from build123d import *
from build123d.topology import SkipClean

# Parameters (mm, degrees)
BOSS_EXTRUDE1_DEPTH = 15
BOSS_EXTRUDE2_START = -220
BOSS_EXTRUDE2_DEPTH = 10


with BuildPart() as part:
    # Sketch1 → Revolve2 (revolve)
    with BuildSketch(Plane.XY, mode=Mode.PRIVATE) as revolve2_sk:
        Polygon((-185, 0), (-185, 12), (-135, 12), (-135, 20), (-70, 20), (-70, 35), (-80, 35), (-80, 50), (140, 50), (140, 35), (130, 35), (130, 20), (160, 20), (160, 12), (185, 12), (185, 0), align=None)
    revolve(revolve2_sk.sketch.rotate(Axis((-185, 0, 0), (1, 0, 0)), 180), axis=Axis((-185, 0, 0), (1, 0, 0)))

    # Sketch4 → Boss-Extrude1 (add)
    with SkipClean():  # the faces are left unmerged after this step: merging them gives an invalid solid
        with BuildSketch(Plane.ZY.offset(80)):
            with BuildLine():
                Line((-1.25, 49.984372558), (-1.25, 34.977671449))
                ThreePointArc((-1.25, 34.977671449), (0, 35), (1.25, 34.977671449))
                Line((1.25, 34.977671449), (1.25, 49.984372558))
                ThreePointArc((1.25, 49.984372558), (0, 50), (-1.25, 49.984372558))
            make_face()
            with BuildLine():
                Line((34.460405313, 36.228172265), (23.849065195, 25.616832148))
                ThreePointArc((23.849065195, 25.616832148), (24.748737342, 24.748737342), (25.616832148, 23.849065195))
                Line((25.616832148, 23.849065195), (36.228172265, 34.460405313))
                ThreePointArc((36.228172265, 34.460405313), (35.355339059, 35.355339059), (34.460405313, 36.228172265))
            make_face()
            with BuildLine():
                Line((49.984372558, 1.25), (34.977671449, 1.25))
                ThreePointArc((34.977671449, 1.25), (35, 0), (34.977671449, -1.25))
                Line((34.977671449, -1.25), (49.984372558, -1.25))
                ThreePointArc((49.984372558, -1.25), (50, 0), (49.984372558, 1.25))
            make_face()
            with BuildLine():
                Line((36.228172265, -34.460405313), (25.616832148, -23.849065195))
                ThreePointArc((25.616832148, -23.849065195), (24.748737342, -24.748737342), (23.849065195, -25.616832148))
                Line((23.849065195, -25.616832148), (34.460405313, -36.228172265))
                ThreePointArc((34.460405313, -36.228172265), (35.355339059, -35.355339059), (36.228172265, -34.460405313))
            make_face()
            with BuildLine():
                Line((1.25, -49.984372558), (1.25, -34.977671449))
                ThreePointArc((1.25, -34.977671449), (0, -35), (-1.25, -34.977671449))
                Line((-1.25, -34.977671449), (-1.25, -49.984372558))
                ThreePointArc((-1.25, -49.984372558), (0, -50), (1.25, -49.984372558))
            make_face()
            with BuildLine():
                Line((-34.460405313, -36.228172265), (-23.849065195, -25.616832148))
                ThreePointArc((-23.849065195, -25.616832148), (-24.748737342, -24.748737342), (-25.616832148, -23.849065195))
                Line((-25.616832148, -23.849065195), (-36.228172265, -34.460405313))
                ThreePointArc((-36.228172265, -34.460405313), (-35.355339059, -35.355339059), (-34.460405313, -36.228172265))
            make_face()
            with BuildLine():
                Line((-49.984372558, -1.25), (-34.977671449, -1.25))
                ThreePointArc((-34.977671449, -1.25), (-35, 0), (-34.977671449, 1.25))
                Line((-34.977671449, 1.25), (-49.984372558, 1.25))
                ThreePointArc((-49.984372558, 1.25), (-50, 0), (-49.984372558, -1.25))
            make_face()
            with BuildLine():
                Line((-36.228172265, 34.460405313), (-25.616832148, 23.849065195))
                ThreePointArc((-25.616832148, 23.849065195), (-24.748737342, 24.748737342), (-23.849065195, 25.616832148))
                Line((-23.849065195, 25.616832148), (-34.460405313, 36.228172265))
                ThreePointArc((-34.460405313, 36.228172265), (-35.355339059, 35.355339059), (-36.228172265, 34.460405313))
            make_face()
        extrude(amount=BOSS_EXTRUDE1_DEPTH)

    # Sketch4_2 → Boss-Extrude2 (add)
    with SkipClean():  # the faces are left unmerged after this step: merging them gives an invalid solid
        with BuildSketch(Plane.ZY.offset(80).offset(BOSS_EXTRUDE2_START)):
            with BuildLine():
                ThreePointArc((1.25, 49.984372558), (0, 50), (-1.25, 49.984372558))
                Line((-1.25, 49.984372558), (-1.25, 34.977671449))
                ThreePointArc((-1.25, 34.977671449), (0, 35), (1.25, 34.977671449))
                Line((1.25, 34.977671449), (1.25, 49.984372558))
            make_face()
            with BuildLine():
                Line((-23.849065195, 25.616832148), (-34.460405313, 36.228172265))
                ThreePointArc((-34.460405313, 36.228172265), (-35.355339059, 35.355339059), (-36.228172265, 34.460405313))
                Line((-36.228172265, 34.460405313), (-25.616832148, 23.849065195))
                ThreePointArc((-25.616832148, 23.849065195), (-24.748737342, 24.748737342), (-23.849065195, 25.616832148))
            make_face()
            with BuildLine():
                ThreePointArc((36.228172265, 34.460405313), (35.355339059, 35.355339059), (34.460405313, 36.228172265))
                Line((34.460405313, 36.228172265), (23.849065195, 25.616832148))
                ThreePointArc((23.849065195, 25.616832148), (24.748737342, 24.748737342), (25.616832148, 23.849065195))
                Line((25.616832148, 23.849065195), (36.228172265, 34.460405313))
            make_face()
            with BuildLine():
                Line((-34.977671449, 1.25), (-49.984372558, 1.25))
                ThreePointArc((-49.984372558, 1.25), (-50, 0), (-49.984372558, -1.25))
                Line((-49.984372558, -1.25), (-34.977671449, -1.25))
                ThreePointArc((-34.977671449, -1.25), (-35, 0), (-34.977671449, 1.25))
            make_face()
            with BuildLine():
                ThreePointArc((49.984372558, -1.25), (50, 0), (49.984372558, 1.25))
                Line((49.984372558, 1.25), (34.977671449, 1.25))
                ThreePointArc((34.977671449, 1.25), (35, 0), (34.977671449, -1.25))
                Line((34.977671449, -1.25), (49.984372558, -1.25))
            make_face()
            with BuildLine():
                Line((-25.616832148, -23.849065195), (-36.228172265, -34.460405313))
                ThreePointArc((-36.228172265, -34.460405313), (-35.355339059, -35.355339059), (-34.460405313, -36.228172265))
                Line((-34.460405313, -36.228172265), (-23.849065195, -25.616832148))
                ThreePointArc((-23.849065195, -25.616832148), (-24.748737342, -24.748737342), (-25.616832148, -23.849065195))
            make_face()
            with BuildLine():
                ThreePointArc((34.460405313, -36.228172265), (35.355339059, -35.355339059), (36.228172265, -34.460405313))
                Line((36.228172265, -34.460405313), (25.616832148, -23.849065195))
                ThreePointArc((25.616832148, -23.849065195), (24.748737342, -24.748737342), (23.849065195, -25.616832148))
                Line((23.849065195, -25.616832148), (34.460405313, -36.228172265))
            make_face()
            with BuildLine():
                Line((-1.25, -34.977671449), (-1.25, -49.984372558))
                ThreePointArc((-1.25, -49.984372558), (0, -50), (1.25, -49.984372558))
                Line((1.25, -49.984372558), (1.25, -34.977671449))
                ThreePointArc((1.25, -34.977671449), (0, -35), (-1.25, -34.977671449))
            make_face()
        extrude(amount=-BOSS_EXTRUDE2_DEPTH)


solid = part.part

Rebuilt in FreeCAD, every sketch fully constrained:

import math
import FreeCAD as App
import Part
import Sketcher
Q = App.Units.Quantity


def add_polygon(sketch, points):
    """Adds a closed chain of lines whose ends are joined by coincident constraints."""
    first, n = sketch.GeometryCount, len(points)
    for a, b in zip(points, points[1:] + points[:1]):
        sketch.addGeometry(Part.LineSegment(App.Vector(*a, 0), App.Vector(*b, 0)), False)
    for i in range(n):
        sketch.addConstraint(Sketcher.Constraint("Coincident", first + i, 2, first + (i + 1) % n, 1))

doc = App.newDocument("Part")
body = doc.addObject("PartDesign::Body", "Body")

sketch1 = body.newObject("Sketcher::SketchObject", "Sketch")
sketch1.AttachmentSupport = (doc.getObject("XY_Plane"), [""])
sketch1.MapMode = "FlatFace"
add_polygon(sketch1, [(-185, 12), (-185, 0), (185, 0), (185, 12), (160, 12), (160, 20), (130, 20), (130, 35), (140, 35), (140, 50), (-80, 50), (-80, 35), (-70, 35), (-70, 20), (-135, 20), (-135, 12)])
sketch1.addConstraint([
    Sketcher.Constraint("Vertical", 0),
    Sketcher.Constraint("Horizontal", 1),
    Sketcher.Constraint("Vertical", 2),
    Sketcher.Constraint("Horizontal", 3),
    Sketcher.Constraint("Vertical", 4),
    Sketcher.Constraint("Horizontal", 5),
    Sketcher.Constraint("Vertical", 6),
    Sketcher.Constraint("Horizontal", 7),
    Sketcher.Constraint("Vertical", 8),
    Sketcher.Constraint("Horizontal", 9),
    Sketcher.Constraint("Vertical", 10),
    Sketcher.Constraint("Horizontal", 11),
    Sketcher.Constraint("Vertical", 12),
    Sketcher.Constraint("Horizontal", 13),
    Sketcher.Constraint("Vertical", 14),
    Sketcher.Constraint("Horizontal", 15),
    Sketcher.Constraint("Symmetric", 0, 2, 1, 2, -1, 1),
    Sketcher.Constraint("Horizontal", 7, 2, 10, 2),
    Sketcher.Constraint("Horizontal", 5, 2, 12, 2),
    Sketcher.Constraint("Horizontal", 3, 2, 14, 2),
    Sketcher.Constraint("Equal", 7, 11),
    Sketcher.Constraint("Equal", 6, 8),
    Sketcher.Constraint("DistanceX", 1, 1, 1, 2, Q("370 mm")),
    Sketcher.Constraint("DistanceX", 3, 2, 3, 1, Q("25 mm")),
    Sketcher.Constraint("DistanceX", 5, 2, 5, 1, Q("30 mm")),
    Sketcher.Constraint("DistanceX", 7, 1, 7, 2, Q("10 mm")),
    Sketcher.Constraint("DistanceX", 9, 2, 9, 1, Q("220 mm")),
    Sketcher.Constraint("DistanceX", 13, 2, 13, 1, Q("65 mm")),
    Sketcher.Constraint("DistanceY", 0, 2, 0, 1, Q("12 mm")),
    Sketcher.Constraint("DistanceY", 4, 1, 4, 2, Q("8 mm")),
    Sketcher.Constraint("DistanceY", 6, 1, 6, 2, Q("15 mm")),
])
revolution = body.newObject("PartDesign::Revolution", "Revolution")
revolution.Profile = sketch1
revolution.ReferenceAxis = (sketch1, ["H_Axis"])
revolution.Angle = 360

sketch2 = body.newObject("Sketcher::SketchObject", "Sketch001")
sketch2.AttachmentSupport = (doc.getObject("YZ_Plane"), [""])
sketch2.MapMode = "FlatFace"
sketch2.AttachmentOffset = App.Placement(App.Vector(0, 0, -80), App.Rotation())
sketch2.addGeometry([
    Part.LineSegment(App.Vector(49.984373, -1.25, 0), App.Vector(34.977671, -1.25, 0)),
    Part.ArcOfCircle(Part.Circle(App.Vector(0, 0, 0), App.Vector(0, 0, 1), 35), math.radians(-2.046713), math.radians(2.046713)),
    Part.LineSegment(App.Vector(34.977671, 1.25, 0), App.Vector(49.984373, 1.25, 0)),
    Part.ArcOfCircle(Part.Circle(App.Vector(-0.000001, 0, 0), App.Vector(0, 0, 1), 50.000001), math.radians(-1.432544), math.radians(1.432544)),
    Part.LineSegment(App.Vector(36.228172, 34.460405, 0), App.Vector(25.616832, 23.849065, 0)),
    Part.ArcOfCircle(Part.Circle(App.Vector(0.000001, 0.000001, 0), App.Vector(0, 0, 1), 34.999998), math.radians(42.953287), math.radians(47.046713)),
    Part.LineSegment(App.Vector(23.849065, 25.616832, 0), App.Vector(34.460405, 36.228172, 0)),
    Part.ArcOfCircle(Part.Circle(App.Vector(-0.000001, -0.000001, 0), App.Vector(0, 0, 1), 50.000001), math.radians(43.567456), math.radians(46.432544)),
    Part.LineSegment(App.Vector(1.25, 49.984373, 0), App.Vector(1.25, 34.977671, 0)),
    Part.ArcOfCircle(Part.Circle(App.Vector(0, 0, 0), App.Vector(0, 0, 1), 35), math.radians(87.953287), math.radians(92.046713)),
    Part.LineSegment(App.Vector(-1.25, 34.977671, 0), App.Vector(-1.25, 49.984373, 0)),
    Part.ArcOfCircle(Part.Circle(App.Vector(0, -0.000001, 0), App.Vector(0, 0, 1), 50.000001), math.radians(88.567456), math.radians(91.432544)),
    Part.LineSegment(App.Vector(-34.460405, 36.228172, 0), App.Vector(-23.849065, 25.616832, 0)),
    Part.ArcOfCircle(Part.Circle(App.Vector(-0.000001, 0.000001, 0), App.Vector(0, 0, 1), 34.999998), math.radians(132.953287), math.radians(137.046713)),
    Part.LineSegment(App.Vector(-25.616832, 23.849065, 0), App.Vector(-36.228172, 34.460405, 0)),
    Part.ArcOfCircle(Part.Circle(App.Vector(0.000001, -0.000001, 0), App.Vector(0, 0, 1), 50.000001), math.radians(133.567456), math.radians(136.432544)),
    Part.LineSegment(App.Vector(-49.984373, 1.25, 0), App.Vector(-34.977671, 1.25, 0)),
    Part.ArcOfCircle(Part.Circle(App.Vector(0, 0, 0), App.Vector(0, 0, 1), 35), math.radians(177.953287), math.radians(182.046713)),
    Part.LineSegment(App.Vector(-34.977671, -1.25, 0), App.Vector(-49.984373, -1.25, 0)),
    Part.ArcOfCircle(Part.Circle(App.Vector(0.000001, 0, 0), App.Vector(0, 0, 1), 50.000001), math.radians(178.567456), math.radians(181.432544)),
    Part.LineSegment(App.Vector(-36.228172, -34.460405, 0), App.Vector(-25.616832, -23.849065, 0)),
    Part.ArcOfCircle(Part.Circle(App.Vector(-0.000001, -0.000001, 0), App.Vector(0, 0, 1), 34.999998), math.radians(-137.046713), math.radians(-132.953287)),
    Part.LineSegment(App.Vector(-23.849065, -25.616832, 0), App.Vector(-34.460405, -36.228172, 0)),
    Part.ArcOfCircle(Part.Circle(App.Vector(0.000001, 0.000001, 0), App.Vector(0, 0, 1), 50.000001), math.radians(-136.432544), math.radians(-133.567456)),
    Part.LineSegment(App.Vector(-1.25, -49.984373, 0), App.Vector(-1.25, -34.977671, 0)),
    Part.ArcOfCircle(Part.Circle(App.Vector(0, 0, 0), App.Vector(0, 0, 1), 35), math.radians(-92.046713), math.radians(-87.953287)),
    Part.LineSegment(App.Vector(1.25, -34.977671, 0), App.Vector(1.25, -49.984373, 0)),
    Part.ArcOfCircle(Part.Circle(App.Vector(0, 0.000001, 0), App.Vector(0, 0, 1), 50.000001), math.radians(-91.432544), math.radians(-88.567456)),
    Part.LineSegment(App.Vector(34.460405, -36.228172, 0), App.Vector(23.849065, -25.616832, 0)),
    Part.ArcOfCircle(Part.Circle(App.Vector(0.000001, -0.000001, 0), App.Vector(0, 0, 1), 34.999998), math.radians(-47.046713), math.radians(-42.953287)),
    Part.LineSegment(App.Vector(25.616832, -23.849065, 0), App.Vector(36.228172, -34.460405, 0)),
    Part.ArcOfCircle(Part.Circle(App.Vector(-0.000001, 0.000001, 0), App.Vector(0, 0, 1), 50.000001), math.radians(-46.432544), math.radians(-43.567456)),
], False)
sketch2.addConstraint([
    Sketcher.Constraint("Coincident", 0, 2, 1, 1),
    Sketcher.Constraint("Coincident", 1, 2, 2, 1),
    Sketcher.Constraint("Coincident", 2, 2, 3, 2),
    Sketcher.Constraint("Coincident", 3, 1, 0, 1),
    Sketcher.Constraint("Coincident", 4, 2, 5, 1),
    Sketcher.Constraint("Coincident", 5, 2, 6, 1),
    Sketcher.Constraint("Coincident", 6, 2, 7, 2),
    Sketcher.Constraint("Coincident", 7, 1, 4, 1),
    Sketcher.Constraint("Coincident", 8, 2, 9, 1),
    Sketcher.Constraint("Coincident", 9, 2, 10, 1),
    Sketcher.Constraint("Coincident", 10, 2, 11, 2),
    Sketcher.Constraint("Coincident", 11, 1, 8, 1),
    Sketcher.Constraint("Coincident", 12, 2, 13, 1),
    Sketcher.Constraint("Coincident", 13, 2, 14, 1),
    Sketcher.Constraint("Coincident", 14, 2, 15, 2),
    Sketcher.Constraint("Coincident", 15, 1, 12, 1),
    Sketcher.Constraint("Coincident", 16, 2, 17, 1),
    Sketcher.Constraint("Coincident", 17, 2, 18, 1),
    Sketcher.Constraint("Coincident", 18, 2, 19, 2),
    Sketcher.Constraint("Coincident", 19, 1, 16, 1),
    Sketcher.Constraint("Coincident", 20, 2, 21, 1),
    Sketcher.Constraint("Coincident", 21, 2, 22, 1),
    Sketcher.Constraint("Coincident", 22, 2, 23, 2),
    Sketcher.Constraint("Coincident", 23, 1, 20, 1),
    Sketcher.Constraint("Coincident", 24, 2, 25, 1),
    Sketcher.Constraint("Coincident", 25, 2, 26, 1),
    Sketcher.Constraint("Coincident", 26, 2, 27, 2),
    Sketcher.Constraint("Coincident", 27, 1, 24, 1),
    Sketcher.Constraint("Coincident", 28, 2, 29, 1),
    Sketcher.Constraint("Coincident", 29, 2, 30, 1),
    Sketcher.Constraint("Coincident", 30, 2, 31, 2),
    Sketcher.Constraint("Coincident", 31, 1, 28, 1),
    Sketcher.Constraint("Horizontal", 0),
    Sketcher.Constraint("Horizontal", 2),
    Sketcher.Constraint("Vertical", 8),
    Sketcher.Constraint("Vertical", 10),
    Sketcher.Constraint("Horizontal", 16),
    Sketcher.Constraint("Horizontal", 18),
    Sketcher.Constraint("Vertical", 24),
    Sketcher.Constraint("Vertical", 26),
    Sketcher.Constraint("Coincident", 1, 3, -1, 1),
    Sketcher.Constraint("Coincident", 3, 3, -1, 1),
    Sketcher.Constraint("Coincident", 5, 3, -1, 1),
    Sketcher.Constraint("Coincident", 7, 3, -1, 1),
    Sketcher.Constraint("Coincident", 9, 3, -1, 1),
    Sketcher.Constraint("Coincident", 11, 3, -1, 1),
    Sketcher.Constraint("Coincident", 13, 3, -1, 1),
    Sketcher.Constraint("Coincident", 15, 3, -1, 1),
    Sketcher.Constraint("Coincident", 17, 3, -1, 1),
    Sketcher.Constraint("Coincident", 19, 3, -1, 1),
    Sketcher.Constraint("Coincident", 21, 3, -1, 1),
    Sketcher.Constraint("Coincident", 23, 3, -1, 1),
    Sketcher.Constraint("Coincident", 25, 3, -1, 1),
    Sketcher.Constraint("Coincident", 27, 3, -1, 1),
    Sketcher.Constraint("Coincident", 29, 3, -1, 1),
    Sketcher.Constraint("Coincident", 31, 3, -1, 1),
    Sketcher.Constraint("Equal", 1, 5),
    Sketcher.Constraint("Equal", 3, 7),
    Sketcher.Constraint("Equal", 5, 9),
    Sketcher.Constraint("Equal", 7, 11),
    Sketcher.Constraint("Equal", 9, 13),
    Sketcher.Constraint("Equal", 11, 15),
    Sketcher.Constraint("Equal", 13, 17),
    Sketcher.Constraint("Equal", 15, 19),
    Sketcher.Constraint("Equal", 17, 21),
    Sketcher.Constraint("Equal", 19, 23),
    Sketcher.Constraint("Equal", 21, 25),
    Sketcher.Constraint("Equal", 23, 27),
    Sketcher.Constraint("Equal", 25, 29),
    Sketcher.Constraint("Equal", 27, 31),
    Sketcher.Constraint("Parallel", 4, 6),
    Sketcher.Constraint("Perpendicular", 6, 12),
    Sketcher.Constraint("Parallel", 12, 14),
    Sketcher.Constraint("Perpendicular", 14, 20),
    Sketcher.Constraint("Parallel", 20, 22),
    Sketcher.Constraint("Perpendicular", 22, 28),
    Sketcher.Constraint("Parallel", 28, 30),
    Sketcher.Constraint("Horizontal", 8, 2, 9, 2),
    Sketcher.Constraint("Horizontal", 5, 2, 12, 2),
    Sketcher.Constraint("Horizontal", 4, 2, 13, 2),
    Sketcher.Constraint("Horizontal", 7, 1, 14, 2),
    Sketcher.Constraint("Horizontal", 2, 2, 16, 2),
    Sketcher.Constraint("Horizontal", 3, 1, 17, 2),
    Sketcher.Constraint("Horizontal", 24, 2, 25, 2),
    Sketcher.Constraint("Horizontal", 21, 2, 28, 2),
    Sketcher.Constraint("Horizontal", 20, 2, 29, 2),
    Sketcher.Constraint("Vertical", 0, 2, 1, 2),
    Sketcher.Constraint("Vertical", 13, 2, 20, 2),
    Sketcher.Constraint("Vertical", 12, 2, 21, 2),
    Sketcher.Constraint("Vertical", 10, 2, 24, 2),
    Sketcher.Constraint("Equal", 18, 8),
    Sketcher.Constraint("Equal", 4, 6),
    Sketcher.Constraint("Radius", 1, Q("35 mm")),
    Sketcher.Constraint("Radius", 3, Q("50.000001 mm")),
    Sketcher.Constraint("DistanceY", 0, 2, 1, 2, Q("2.5 mm")),
    Sketcher.Constraint("DistanceX", 1, 2, 7, 1, Q("1.250501 mm")),
])
pad1 = body.newObject("PartDesign::Pad", "Pad")
pad1.Profile = sketch2
pad1.Length = 15
pad1.Reversed = True

sketch3 = body.newObject("Sketcher::SketchObject", "Sketch002")
sketch3.AttachmentSupport = (doc.getObject("YZ_Plane"), [""])
sketch3.MapMode = "FlatFace"
sketch3.AttachmentOffset = App.Placement(App.Vector(0, 0, 140), App.Rotation())
sketch3.addGeometry([
    Part.ArcOfCircle(Part.Circle(App.Vector(-0.000001, 0, 0), App.Vector(0, 0, 1), 50.000001), math.radians(-1.432544), math.radians(1.432544)),
    Part.LineSegment(App.Vector(49.984373, -1.25, 0), App.Vector(34.977671, -1.25, 0)),
    Part.ArcOfCircle(Part.Circle(App.Vector(0, 0, 0), App.Vector(0, 0, 1), 35), math.radians(-2.046713), math.radians(2.046713)),
    Part.LineSegment(App.Vector(34.977671, 1.25, 0), App.Vector(49.984373, 1.25, 0)),
    Part.LineSegment(App.Vector(25.616832, -23.849065, 0), App.Vector(36.228172, -34.460405, 0)),
    Part.ArcOfCircle(Part.Circle(App.Vector(-0.000001, 0.000001, 0), App.Vector(0, 0, 1), 50.000001), math.radians(-46.432544), math.radians(-43.567456)),
    Part.LineSegment(App.Vector(34.460405, -36.228172, 0), App.Vector(23.849065, -25.616832, 0)),
    Part.ArcOfCircle(Part.Circle(App.Vector(0.000001, -0.000001, 0), App.Vector(0, 0, 1), 34.999998), math.radians(-47.046713), math.radians(-42.953287)),
    Part.ArcOfCircle(Part.Circle(App.Vector(-0.000001, -0.000001, 0), App.Vector(0, 0, 1), 50.000001), math.radians(43.567456), math.radians(46.432544)),
    Part.LineSegment(App.Vector(36.228172, 34.460405, 0), App.Vector(25.616832, 23.849065, 0)),
    Part.ArcOfCircle(Part.Circle(App.Vector(0.000001, 0.000001, 0), App.Vector(0, 0, 1), 34.999998), math.radians(42.953287), math.radians(47.046713)),
    Part.LineSegment(App.Vector(23.849065, 25.616832, 0), App.Vector(34.460405, 36.228172, 0)),
    Part.LineSegment(App.Vector(1.25, -34.977671, 0), App.Vector(1.25, -49.984373, 0)),
    Part.ArcOfCircle(Part.Circle(App.Vector(0, 0.000001, 0), App.Vector(0, 0, 1), 50.000001), math.radians(-91.432544), math.radians(-88.567456)),
    Part.LineSegment(App.Vector(-1.25, -49.984373, 0), App.Vector(-1.25, -34.977671, 0)),
    Part.ArcOfCircle(Part.Circle(App.Vector(0, 0, 0), App.Vector(0, 0, 1), 35), math.radians(-92.046713), math.radians(-87.953287)),
    Part.ArcOfCircle(Part.Circle(App.Vector(0, -0.000001, 0), App.Vector(0, 0, 1), 50.000001), math.radians(88.567456), math.radians(91.432544)),
    Part.LineSegment(App.Vector(1.25, 49.984373, 0), App.Vector(1.25, 34.977671, 0)),
    Part.ArcOfCircle(Part.Circle(App.Vector(0, 0, 0), App.Vector(0, 0, 1), 35), math.radians(87.953287), math.radians(92.046713)),
    Part.LineSegment(App.Vector(-1.25, 34.977671, 0), App.Vector(-1.25, 49.984373, 0)),
    Part.LineSegment(App.Vector(-23.849065, -25.616832, 0), App.Vector(-34.460405, -36.228172, 0)),
    Part.ArcOfCircle(Part.Circle(App.Vector(0.000001, 0.000001, 0), App.Vector(0, 0, 1), 50.000001), math.radians(-136.432544), math.radians(-133.567456)),
    Part.LineSegment(App.Vector(-36.228172, -34.460405, 0), App.Vector(-25.616832, -23.849065, 0)),
    Part.ArcOfCircle(Part.Circle(App.Vector(-0.000001, -0.000001, 0), App.Vector(0, 0, 1), 34.999998), math.radians(-137.046713), math.radians(-132.953287)),
    Part.ArcOfCircle(Part.Circle(App.Vector(0.000001, -0.000001, 0), App.Vector(0, 0, 1), 50.000001), math.radians(133.567456), math.radians(136.432544)),
    Part.LineSegment(App.Vector(-34.460405, 36.228172, 0), App.Vector(-23.849065, 25.616832, 0)),
    Part.ArcOfCircle(Part.Circle(App.Vector(-0.000001, 0.000001, 0), App.Vector(0, 0, 1), 34.999998), math.radians(132.953287), math.radians(137.046713)),
    Part.LineSegment(App.Vector(-25.616832, 23.849065, 0), App.Vector(-36.228172, 34.460405, 0)),
    Part.LineSegment(App.Vector(-34.977671, -1.25, 0), App.Vector(-49.984373, -1.25, 0)),
    Part.ArcOfCircle(Part.Circle(App.Vector(0.000001, 0, 0), App.Vector(0, 0, 1), 50.000001), math.radians(178.567456), math.radians(181.432544)),
    Part.LineSegment(App.Vector(-49.984373, 1.25, 0), App.Vector(-34.977671, 1.25, 0)),
    Part.ArcOfCircle(Part.Circle(App.Vector(0, 0, 0), App.Vector(0, 0, 1), 35), math.radians(177.953287), math.radians(182.046713)),
], False)
sketch3.addConstraint([
    Sketcher.Constraint("Coincident", 0, 1, 1, 1),
    Sketcher.Constraint("Coincident", 1, 2, 2, 1),
    Sketcher.Constraint("Coincident", 2, 2, 3, 1),
    Sketcher.Constraint("Coincident", 3, 2, 0, 2),
    Sketcher.Constraint("Coincident", 4, 2, 5, 2),
    Sketcher.Constraint("Coincident", 5, 1, 6, 1),
    Sketcher.Constraint("Coincident", 6, 2, 7, 1),
    Sketcher.Constraint("Coincident", 7, 2, 4, 1),
    Sketcher.Constraint("Coincident", 8, 1, 9, 1),
    Sketcher.Constraint("Coincident", 9, 2, 10, 1),
    Sketcher.Constraint("Coincident", 10, 2, 11, 1),
    Sketcher.Constraint("Coincident", 11, 2, 8, 2),
    Sketcher.Constraint("Coincident", 12, 2, 13, 2),
    Sketcher.Constraint("Coincident", 13, 1, 14, 1),
    Sketcher.Constraint("Coincident", 14, 2, 15, 1),
    Sketcher.Constraint("Coincident", 15, 2, 12, 1),
    Sketcher.Constraint("Coincident", 16, 1, 17, 1),
    Sketcher.Constraint("Coincident", 17, 2, 18, 1),
    Sketcher.Constraint("Coincident", 18, 2, 19, 1),
    Sketcher.Constraint("Coincident", 19, 2, 16, 2),
    Sketcher.Constraint("Coincident", 20, 2, 21, 2),
    Sketcher.Constraint("Coincident", 21, 1, 22, 1),
    Sketcher.Constraint("Coincident", 22, 2, 23, 1),
    Sketcher.Constraint("Coincident", 23, 2, 20, 1),
    Sketcher.Constraint("Coincident", 24, 1, 25, 1),
    Sketcher.Constraint("Coincident", 25, 2, 26, 1),
    Sketcher.Constraint("Coincident", 26, 2, 27, 1),
    Sketcher.Constraint("Coincident", 27, 2, 24, 2),
    Sketcher.Constraint("Coincident", 28, 2, 29, 2),
    Sketcher.Constraint("Coincident", 29, 1, 30, 1),
    Sketcher.Constraint("Coincident", 30, 2, 31, 1),
    Sketcher.Constraint("Coincident", 31, 2, 28, 1),
    Sketcher.Constraint("Horizontal", 1),
    Sketcher.Constraint("Horizontal", 3),
    Sketcher.Constraint("Vertical", 12),
    Sketcher.Constraint("Vertical", 14),
    Sketcher.Constraint("Vertical", 17),
    Sketcher.Constraint("Vertical", 19),
    Sketcher.Constraint("Horizontal", 28),
    Sketcher.Constraint("Horizontal", 30),
    Sketcher.Constraint("Coincident", 0, 3, -1, 1),
    Sketcher.Constraint("Coincident", 2, 3, -1, 1),
    Sketcher.Constraint("Coincident", 5, 3, -1, 1),
    Sketcher.Constraint("Coincident", 7, 3, -1, 1),
    Sketcher.Constraint("Coincident", 8, 3, -1, 1),
    Sketcher.Constraint("Coincident", 10, 3, -1, 1),
    Sketcher.Constraint("Coincident", 13, 3, -1, 1),
    Sketcher.Constraint("Coincident", 15, 3, -1, 1),
    Sketcher.Constraint("Coincident", 16, 3, -1, 1),
    Sketcher.Constraint("Coincident", 18, 3, -1, 1),
    Sketcher.Constraint("Coincident", 21, 3, -1, 1),
    Sketcher.Constraint("Coincident", 23, 3, -1, 1),
    Sketcher.Constraint("Coincident", 24, 3, -1, 1),
    Sketcher.Constraint("Coincident", 26, 3, -1, 1),
    Sketcher.Constraint("Coincident", 29, 3, -1, 1),
    Sketcher.Constraint("Coincident", 31, 3, -1, 1),
    Sketcher.Constraint("Equal", 0, 5),
    Sketcher.Constraint("Equal", 2, 7),
    Sketcher.Constraint("Equal", 5, 8),
    Sketcher.Constraint("Equal", 7, 10),
    Sketcher.Constraint("Equal", 8, 13),
    Sketcher.Constraint("Equal", 10, 15),
    Sketcher.Constraint("Equal", 13, 16),
    Sketcher.Constraint("Equal", 15, 18),
    Sketcher.Constraint("Equal", 16, 21),
    Sketcher.Constraint("Equal", 18, 23),
    Sketcher.Constraint("Equal", 21, 24),
    Sketcher.Constraint("Equal", 23, 26),
    Sketcher.Constraint("Equal", 24, 29),
    Sketcher.Constraint("Equal", 26, 31),
    Sketcher.Constraint("Parallel", 4, 6),
    Sketcher.Constraint("Perpendicular", 6, 9),
    Sketcher.Constraint("Parallel", 9, 11),
    Sketcher.Constraint("Parallel", 11, 20),
    Sketcher.Constraint("Parallel", 20, 22),
    Sketcher.Constraint("Perpendicular", 22, 25),
    Sketcher.Constraint("Parallel", 25, 27),
    Sketcher.Constraint("Horizontal", 12, 2, 13, 1),
    Sketcher.Constraint("Horizontal", 17, 2, 18, 2),
    Sketcher.Constraint("Horizontal", 5, 1, 20, 2),
    Sketcher.Constraint("Horizontal", 4, 2, 21, 1),
    Sketcher.Constraint("Horizontal", 7, 2, 22, 2),
    Sketcher.Constraint("Horizontal", 11, 2, 24, 1),
    Sketcher.Constraint("Horizontal", 9, 2, 26, 2),
    Sketcher.Constraint("Horizontal", 1, 2, 28, 2),
    Sketcher.Constraint("Horizontal", 3, 2, 29, 1),
    Sketcher.Constraint("Vertical", 1, 2, 2, 2),
    Sketcher.Constraint("Vertical", 4, 2, 8, 1),
    Sketcher.Constraint("Vertical", 6, 2, 10, 2),
    Sketcher.Constraint("Vertical", 15, 2, 16, 1),
    Sketcher.Constraint("Equal", 30, 12),
    Sketcher.Constraint("Equal", 4, 6),
    Sketcher.Constraint("Radius", 0, Q("50.000001 mm")),
    Sketcher.Constraint("Radius", 2, Q("35 mm")),
    Sketcher.Constraint("DistanceY", 1, 2, 2, 2, Q("2.5 mm")),
    Sketcher.Constraint("DistanceX", 1, 2, 4, 2, Q("1.250501 mm")),
])
pad2 = body.newObject("PartDesign::Pad", "Pad001")
pad2.Profile = sketch3
pad2.Length = 10

doc.recompute()
